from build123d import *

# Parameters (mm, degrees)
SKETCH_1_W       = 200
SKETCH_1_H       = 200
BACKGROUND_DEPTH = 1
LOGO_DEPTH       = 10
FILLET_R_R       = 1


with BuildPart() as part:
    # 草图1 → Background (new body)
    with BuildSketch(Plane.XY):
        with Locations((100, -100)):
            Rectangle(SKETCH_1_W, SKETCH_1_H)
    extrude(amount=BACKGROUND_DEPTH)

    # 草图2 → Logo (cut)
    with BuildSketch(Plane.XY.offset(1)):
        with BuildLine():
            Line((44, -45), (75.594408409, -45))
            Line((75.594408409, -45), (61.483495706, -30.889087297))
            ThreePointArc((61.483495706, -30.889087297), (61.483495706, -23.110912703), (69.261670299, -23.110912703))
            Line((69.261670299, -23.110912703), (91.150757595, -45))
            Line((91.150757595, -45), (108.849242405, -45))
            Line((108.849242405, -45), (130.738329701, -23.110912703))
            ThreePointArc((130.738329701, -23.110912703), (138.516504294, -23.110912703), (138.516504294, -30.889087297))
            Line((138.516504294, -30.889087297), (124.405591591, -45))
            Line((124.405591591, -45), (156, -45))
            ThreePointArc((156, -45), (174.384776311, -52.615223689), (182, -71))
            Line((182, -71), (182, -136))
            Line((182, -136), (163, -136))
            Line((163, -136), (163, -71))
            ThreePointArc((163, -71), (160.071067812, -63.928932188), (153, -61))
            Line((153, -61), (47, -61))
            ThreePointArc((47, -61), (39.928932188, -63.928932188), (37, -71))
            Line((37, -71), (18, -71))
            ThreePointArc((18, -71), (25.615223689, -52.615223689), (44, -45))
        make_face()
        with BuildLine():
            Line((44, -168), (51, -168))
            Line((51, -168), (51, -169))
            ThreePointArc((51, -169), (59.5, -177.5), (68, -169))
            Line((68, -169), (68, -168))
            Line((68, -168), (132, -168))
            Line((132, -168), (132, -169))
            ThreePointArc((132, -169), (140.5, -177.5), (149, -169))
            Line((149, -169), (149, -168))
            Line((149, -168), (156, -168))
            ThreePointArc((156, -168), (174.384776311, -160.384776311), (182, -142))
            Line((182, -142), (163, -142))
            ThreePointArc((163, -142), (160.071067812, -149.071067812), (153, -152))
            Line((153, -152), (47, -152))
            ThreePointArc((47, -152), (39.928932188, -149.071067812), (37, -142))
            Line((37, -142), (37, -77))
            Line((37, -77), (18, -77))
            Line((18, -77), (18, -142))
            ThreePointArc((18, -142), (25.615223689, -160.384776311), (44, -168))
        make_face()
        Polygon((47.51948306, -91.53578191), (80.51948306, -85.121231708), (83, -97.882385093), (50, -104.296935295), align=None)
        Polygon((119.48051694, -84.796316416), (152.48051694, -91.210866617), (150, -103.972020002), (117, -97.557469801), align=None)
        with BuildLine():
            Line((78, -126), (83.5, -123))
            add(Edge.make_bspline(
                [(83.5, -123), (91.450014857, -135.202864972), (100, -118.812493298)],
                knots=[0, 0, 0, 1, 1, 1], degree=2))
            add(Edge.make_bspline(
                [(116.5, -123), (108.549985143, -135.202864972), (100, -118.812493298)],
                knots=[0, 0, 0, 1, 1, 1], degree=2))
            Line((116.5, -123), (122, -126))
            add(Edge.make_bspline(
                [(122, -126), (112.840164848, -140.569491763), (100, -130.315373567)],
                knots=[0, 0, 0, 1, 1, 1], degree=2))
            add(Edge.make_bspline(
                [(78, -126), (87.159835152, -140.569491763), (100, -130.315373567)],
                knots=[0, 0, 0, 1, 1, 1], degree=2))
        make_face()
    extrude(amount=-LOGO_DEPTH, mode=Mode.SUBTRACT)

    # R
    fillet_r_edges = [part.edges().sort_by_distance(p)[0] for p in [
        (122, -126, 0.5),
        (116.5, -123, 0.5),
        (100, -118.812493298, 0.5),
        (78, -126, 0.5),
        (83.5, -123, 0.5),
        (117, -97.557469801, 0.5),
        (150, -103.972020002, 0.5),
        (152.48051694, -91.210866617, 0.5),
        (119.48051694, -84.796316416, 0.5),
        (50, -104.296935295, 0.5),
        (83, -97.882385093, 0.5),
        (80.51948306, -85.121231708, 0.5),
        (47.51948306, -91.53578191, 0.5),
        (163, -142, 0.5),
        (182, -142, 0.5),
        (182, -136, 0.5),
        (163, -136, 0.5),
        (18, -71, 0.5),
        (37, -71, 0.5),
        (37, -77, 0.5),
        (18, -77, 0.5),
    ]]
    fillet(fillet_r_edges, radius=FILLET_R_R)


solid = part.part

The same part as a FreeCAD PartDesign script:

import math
import FreeCAD as App
import Part
import Sketcher
Q = App.Units.Quantity


def edges_at(feature, points):
    """Names of the edges that pass closest to the given points."""
    edges = feature.Shape.Edges
    near = lambda p: min(range(len(edges)), key=lambda i: edges[i].distToShape(Part.Vertex(*p))[0])
    return sorted({f"Edge{near(p) + 1}" for p in points})

doc = App.newDocument("Part")
body = doc.addObject("PartDesign::Body", "Body")

sketch1 = body.newObject("Sketcher::SketchObject", "Sketch")
sketch1.AttachmentSupport = (doc.getObject("XY_Plane"), [""])
sketch1.MapMode = "FlatFace"
sketch1.addGeometry([
    Part.LineSegment(App.Vector(0, 0, 0), App.Vector(0, -200, 0)),
    Part.LineSegment(App.Vector(0, -200, 0), App.Vector(200, -200, 0)),
    Part.LineSegment(App.Vector(200, -200, 0), App.Vector(200, 0, 0)),
    Part.LineSegment(App.Vector(200, 0, 0), App.Vector(0, 0, 0)),
], False)
sketch1.addConstraint([
    Sketcher.Constraint("Coincident", 0, 2, 1, 1),
    Sketcher.Constraint("Coincident", 1, 2, 2, 1),
    Sketcher.Constraint("Coincident", 2, 2, 3, 1),
    Sketcher.Constraint("Coincident", 3, 2, 0, 1),
    Sketcher.Constraint("Vertical", 0),
    Sketcher.Constraint("Horizontal", 1),
    Sketcher.Constraint("Vertical", 2),
    Sketcher.Constraint("Horizontal", 3),
    Sketcher.Constraint("Coincident", 3, 2, -1, 1),
    Sketcher.Constraint("Equal", 3, 0),
    Sketcher.Constraint("DistanceX", 1, 1, 1, 2, Q("200 mm")),
])
pad1 = body.newObject("PartDesign::Pad", "Pad")
pad1.Profile = sketch1
pad1.Length = 1

sketch2 = body.newObject("Sketcher::SketchObject", "Sketch001")
sketch2.AttachmentSupport = (doc.getObject("XY_Plane"), [""])
sketch2.MapMode = "FlatFace"
sketch2.AttachmentOffset = App.Placement(App.Vector(0, 0, 1), App.Rotation())
sketch2.addGeometry([
    Part.LineSegment(App.Vector(75.594408, -45, 0), App.Vector(44, -45, 0)),
    Part.ArcOfCircle(Part.Circle(App.Vector(44, -71, 0), App.Vector(0, 0, 1), 26), math.radians(90), math.radians(180)),
    Part.LineSegment(App.Vector(18, -71, 0), App.Vector(37, -71, 0)),
    Part.ArcOfCircle(Part.Circle(App.Vector(47, -71, 0), App.Vector(0, 0, 1), 10), math.radians(90), math.radians(180)),
    Part.LineSegment(App.Vector(47, -61, 0), App.Vector(153, -61, 0)),
    Part.ArcOfCircle(Part.Circle(App.Vector(153, -71, 0), App.Vector(0, 0, 1), 10), math.radians(0), math.radians(90)),
    Part.LineSegment(App.Vector(163, -71, 0), App.Vector(163, -136, 0)),
    Part.LineSegment(App.Vector(163, -136, 0), App.Vector(182, -136, 0)),
    Part.LineSegment(App.Vector(182, -136, 0), App.Vector(182, -71, 0)),
    Part.ArcOfCircle(Part.Circle(App.Vector(156, -71, 0), App.Vector(0, 0, 1), 26), math.radians(0), math.radians(90)),
    Part.LineSegment(App.Vector(156, -45, 0), App.Vector(124.405592, -45, 0)),
    Part.LineSegment(App.Vector(124.405592, -45, 0), App.Vector(138.516504, -30.889087, 0)),
    Part.ArcOfCircle(Part.Circle(App.Vector(134.627417, -27, 0), App.Vector(0, 0, 1), 5.5), math.radians(-45), math.radians(135)),
    Part.LineSegment(App.Vector(130.73833, -23.110913, 0), App.Vector(108.849242, -45, 0)),
    Part.LineSegment(App.Vector(108.849242, -45, 0), App.Vector(91.150758, -45, 0)),
    Part.LineSegment(App.Vector(91.150758, -45, 0), App.Vector(69.26167, -23.110913, 0)),
    Part.ArcOfCircle(Part.Circle(App.Vector(65.372583, -27, 0), App.Vector(0, 0, 1), 5.5), math.radians(45), math.radians(225)),
    Part.LineSegment(App.Vector(61.483496, -30.889087, 0), App.Vector(75.594408, -45, 0)),
    Part.LineSegment(App.Vector(44, -168, 0), App.Vector(51, -168, 0)),
    Part.LineSegment(App.Vector(51, -168, 0), App.Vector(51, -169, 0)),
    Part.ArcOfCircle(Part.Circle(App.Vector(59.5, -169, 0), App.Vector(0, 0, 1), 8.5), math.radians(180), math.radians(360)),
    Part.LineSegment(App.Vector(68, -169, 0), App.Vector(68, -168, 0)),
    Part.LineSegment(App.Vector(68, -168, 0), App.Vector(132, -168, 0)),
    Part.LineSegment(App.Vector(132, -168, 0), App.Vector(132, -169, 0)),
    Part.ArcOfCircle(Part.Circle(App.Vector(140.5, -169, 0), App.Vector(0, 0, 1), 8.5), math.radians(180), math.radians(360)),
    Part.LineSegment(App.Vector(149, -169, 0), App.Vector(149, -168, 0)),
    Part.LineSegment(App.Vector(149, -168, 0), App.Vector(156, -168, 0)),
    Part.ArcOfCircle(Part.Circle(App.Vector(156, -142, 0), App.Vector(0, 0, 1), 26), math.radians(-90), math.radians(0)),
    Part.LineSegment(App.Vector(182, -142, 0), App.Vector(163, -142, 0)),
    Part.ArcOfCircle(Part.Circle(App.Vector(153, -142, 0), App.Vector(0, 0, 1), 10), math.radians(-90), math.radians(0)),
    Part.LineSegment(App.Vector(153, -152, 0), App.Vector(47, -152, 0)),
    Part.ArcOfCircle(Part.Circle(App.Vector(47, -142, 0), App.Vector(0, 0, 1), 10), math.radians(180), math.radians(270)),
    Part.LineSegment(App.Vector(37, -142, 0), App.Vector(37, -77, 0)),
    Part.LineSegment(App.Vector(37, -77, 0), App.Vector(18, -77, 0)),
    Part.LineSegment(App.Vector(18, -77, 0), App.Vector(18, -142, 0)),
    Part.ArcOfCircle(Part.Circle(App.Vector(44, -142, 0), App.Vector(0, 0, 1), 26), math.radians(180), math.radians(270)),
    Part.LineSegment(App.Vector(80.519483, -85.121232, 0), App.Vector(47.519483, -91.535782, 0)),
    Part.LineSegment(App.Vector(47.519483, -91.535782, 0), App.Vector(50, -104.296935, 0)),
    Part.LineSegment(App.Vector(50, -104.296935, 0), App.Vector(83, -97.882385, 0)),
    Part.LineSegment(App.Vector(83, -97.882385, 0), App.Vector(80.519483, -85.121232, 0)),
    Part.LineSegment(App.Vector(152.480517, -91.210867, 0), App.Vector(119.480517, -84.796316, 0)),
    Part.LineSegment(App.Vector(119.480517, -84.796316, 0), App.Vector(117, -97.55747, 0)),
    Part.LineSegment(App.Vector(117, -97.55747, 0), App.Vector(150, -103.97202, 0)),
    Part.LineSegment(App.Vector(150, -103.97202, 0), App.Vector(152.480517, -91.210867, 0)),
    Part.LineSegment(App.Vector(83.5, -123, 0), App.Vector(78, -126, 0)),
    Part.BSplineCurve([App.Vector(78, -126, 0), App.Vector(87.159835, -140.569492, 0), App.Vector(100, -130.315374, 0)], [3, 3], [0, 1], False, 2, [1, 1, 1], False),
    Part.BSplineCurve([App.Vector(122, -126, 0), App.Vector(112.840165, -140.569492, 0), App.Vector(100, -130.315374, 0)], [3, 3], [0, 1], False, 2, [1, 1, 1], False),
    Part.LineSegment(App.Vector(122, -126, 0), App.Vector(116.5, -123, 0)),
    Part.BSplineCurve([App.Vector(116.5, -123, 0), App.Vector(108.549985, -135.202865, 0), App.Vector(100, -118.812493, 0)], [3, 3], [0, 1], False, 2, [1, 1, 1], False),
    Part.BSplineCurve([App.Vector(83.5, -123, 0), App.Vector(91.450015, -135.202865, 0), App.Vector(100, -118.812493, 0)], [3, 3], [0, 1], False, 2, [1, 1, 1], False),
], False)
sketch2.addConstraint([
    Sketcher.Constraint("Block", 45),
    Sketcher.Constraint("Block", 46),
    Sketcher.Constraint("Block", 48),
    Sketcher.Constraint("Block", 49),
    Sketcher.Constraint("Tangent", 0, 2, 1, 1),
    Sketcher.Constraint("Coincident", 1, 2, 2, 1),
    Sketcher.Constraint("Coincident", 2, 2, 3, 2),
    Sketcher.Constraint("Tangent", 3, 1, 4, 1),
    Sketcher.Constraint("Tangent", 4, 2, 5, 2),
    Sketcher.Constraint("Tangent", 5, 1, 6, 1),
    Sketcher.Constraint("Coincident", 6, 2, 7, 1),
    Sketcher.Constraint("Coincident", 7, 2, 8, 1),
    Sketcher.Constraint("Tangent", 8, 2, 9, 1),
    Sketcher.Constraint("Tangent", 9, 2, 10, 1),
    Sketcher.Constraint("Coincident", 10, 2, 11, 1),
    Sketcher.Constraint("Tangent", 11, 2, 12, 1),
    Sketcher.Constraint("Tangent", 12, 2, 13, 1),
    Sketcher.Constraint("Coincident", 13, 2, 14, 1),
    Sketcher.Constraint("Coincident", 14, 2, 15, 1),
    Sketcher.Constraint("Tangent", 15, 2, 16, 1),
    Sketcher.Constraint("Tangent", 16, 2, 17, 1),
    Sketcher.Constraint("Coincident", 17, 2, 0, 1),
    Sketcher.Constraint("Coincident", 18, 2, 19, 1),
    Sketcher.Constraint("Tangent", 19, 2, 20, 1),
    Sketcher.Constraint("Tangent", 20, 2, 21, 1),
    Sketcher.Constraint("Coincident", 21, 2, 22, 1),
    Sketcher.Constraint("Coincident", 22, 2, 23, 1),
    Sketcher.Constraint("Tangent", 23, 2, 24, 1),
    Sketcher.Constraint("Tangent", 24, 2, 25, 1),
    Sketcher.Constraint("Coincident", 25, 2, 26, 1),
    Sketcher.Constraint("Tangent", 26, 2, 27, 1),
    Sketcher.Constraint("Coincident", 27, 2, 28, 1),
    Sketcher.Constraint("Coincident", 28, 2, 29, 2),
    Sketcher.Constraint("Tangent", 29, 1, 30, 1),
    Sketcher.Constraint("Tangent", 30, 2, 31, 2),
    Sketcher.Constraint("Tangent", 31, 1, 32, 1),
    Sketcher.Constraint("Coincident", 32, 2, 33, 1),
    Sketcher.Constraint("Coincident", 33, 2, 34, 1),
    Sketcher.Constraint("Tangent", 34, 2, 35, 1),
    Sketcher.Constraint("Tangent", 35, 2, 18, 1),
    Sketcher.Constraint("Coincident", 36, 2, 37, 1),
    Sketcher.Constraint("Coincident", 37, 2, 38, 1),
    Sketcher.Constraint("Coincident", 38, 2, 39, 1),
    Sketcher.Constraint("Coincident", 39, 2, 36, 1),
    Sketcher.Constraint("Coincident", 40, 2, 41, 1),
    Sketcher.Constraint("Coincident", 41, 2, 42, 1),
    Sketcher.Constraint("Coincident", 42, 2, 43, 1),
    Sketcher.Constraint("Coincident", 43, 2, 40, 1),
    Sketcher.Constraint("Coincident", 44, 2, 45, 1),
    Sketcher.Constraint("Coincident", 46, 1, 47, 1),
    Sketcher.Constraint("Coincident", 47, 2, 48, 1),
    Sketcher.Constraint("Coincident", 49, 1, 44, 1),
    Sketcher.Constraint("Horizontal", 0),
    Sketcher.Constraint("Horizontal", 2),
    Sketcher.Constraint("Horizontal", 4),
    Sketcher.Constraint("Vertical", 6),
    Sketcher.Constraint("Horizontal", 7),
    Sketcher.Constraint("Vertical", 8),
    Sketcher.Constraint("Horizontal", 10),
    Sketcher.Constraint("Horizontal", 14),
    Sketcher.Constraint("Horizontal", 18),
    Sketcher.Constraint("Vertical", 19),
    Sketcher.Constraint("Vertical", 21),
    Sketcher.Constraint("Horizontal", 22),
    Sketcher.Constraint("Vertical", 23),
    Sketcher.Constraint("Vertical", 25),
    Sketcher.Constraint("Horizontal", 26),
    Sketcher.Constraint("Horizontal", 28),
    Sketcher.Constraint("Horizontal", 30),
    Sketcher.Constraint("Vertical", 32),
    Sketcher.Constraint("Horizontal", 33),
    Sketcher.Constraint("Vertical", 34),
    Sketcher.Constraint("Equal", 3, 5),
    Sketcher.Constraint("Equal", 1, 9),
    Sketcher.Constraint("Equal", 12, 16),
    Sketcher.Constraint("Equal", 20, 24),
    Sketcher.Constraint("Equal", 9, 27),
    Sketcher.Constraint("Equal", 5, 29),
    Sketcher.Constraint("Equal", 29, 31),
    Sketcher.Constraint("Equal", 27, 35),
    Sketcher.Constraint("Parallel", 11, 13),
    Sketcher.Constraint("Perpendicular", 13, 15),
    Sketcher.Constraint("Parallel", 15, 17),
    Sketcher.Constraint("Perpendicular", 36, 37),
    Sketcher.Constraint("Perpendicular", 37, 38),
    Sketcher.Constraint("Perpendicular", 38, 39),
    Sketcher.Constraint("Perpendicular", 40, 41),
    Sketcher.Constraint("Perpendicular", 41, 42),
    Sketcher.Constraint("Perpendicular", 42, 43),
    Sketcher.Constraint("Horizontal", 1, 3, 3, 3),
    Sketcher.Constraint("Horizontal", 5, 3, 9, 3),
    Sketcher.Constraint("Horizontal", 12, 3, 16, 3),
    Sketcher.Constraint("Horizontal", 20, 3, 24, 3),
    Sketcher.Constraint("Horizontal", 27, 3, 29, 3),
    Sketcher.Constraint("Horizontal", 31, 3, 35, 3),
    Sketcher.Constraint("Horizontal", 9, 3, 1, 2),
    Sketcher.Constraint("Horizontal", 10, 2, 13, 2),
    Sketcher.Constraint("Horizontal", 12, 2, 15, 2),
    Sketcher.Constraint("Horizontal", 18, 2, 21, 2),
    Sketcher.Constraint("Horizontal", 35, 3, 27, 2),
    Sketcher.Constraint("Vertical", 9, 3, 27, 3),
    Sketcher.Constraint("Vertical", 5, 3, 29, 3),
    Sketcher.Constraint("Vertical", 3, 3, 31, 3),
    Sketcher.Constraint("Vertical", 1, 3, 35, 3),
    Sketcher.Constraint("Equal", 2, 7),
    Sketcher.Constraint("Equal", 0, 10),
    Sketcher.Constraint("Equal", 18, 26),
    Sketcher.Constraint("Equal", 8, 32),
    Sketcher.Constraint("Equal", 38, 40),
    Sketcher.Constraint("Equal", 39, 41),
    Sketcher.Constraint("Radius", 1, Q("26 mm")),
    Sketcher.Constraint("Radius", 3, Q("10 mm")),
    Sketcher.Constraint("Radius", 12, Q("5.5 mm")),
    Sketcher.Constraint("Radius", 20, Q("8.5 mm")),
    Sketcher.Constraint("DistanceX", 2, 1, 2, 2, Q("19 mm")),
    Sketcher.Constraint("DistanceX", 4, 1, 4, 2, Q("106 mm")),
    Sketcher.Constraint("DistanceX", 18, 1, 18, 2, Q("7 mm")),
    Sketcher.Constraint("DistanceY", 6, 2, 6, 1, Q("65 mm")),
    Sketcher.Constraint("DistanceY", 19, 2, 19, 1, Q("1 mm")),
    Sketcher.Constraint("Angle", 36, Q("-169 deg")),
    Sketcher.Constraint("Angle", 40, Q("169 deg")),
    Sketcher.Constraint("Distance", 37, Q("13 mm")),
    Sketcher.Constraint("DistanceX", -1, 1, 1, 3, Q("44 mm")),
    Sketcher.Constraint("DistanceY", 1, 3, -1, 1, Q("71 mm")),
    Sketcher.Constraint("DistanceY", 12, 3, -1, 1, Q("27 mm")),
    Sketcher.Constraint("DistanceY", 20, 3, -1, 1, Q("169 mm")),
    Sketcher.Constraint("DistanceX", -1, 1, 37, 2, Q("50 mm")),
    Sketcher.Constraint("DistanceX", -1, 1, 38, 2, Q("83 mm")),
    Sketcher.Constraint("DistanceX", -1, 1, 41, 2, Q("117 mm")),
    Sketcher.Constraint("DistanceX", 0, 2, 0, 1, Q("31.594408 mm")),
    Sketcher.Constraint("DistanceY", 36, 2, -1, 1, Q("91.535782 mm")),
    Sketcher.Constraint("DistanceY", 41, 2, -1, 1, Q("97.55747 mm")),
])
pocket1 = body.newObject("PartDesign::Pocket", "Pocket")
pocket1.Profile = sketch2
pocket1.Length = 10
doc.recompute()

fillet = body.newObject("PartDesign::Fillet", "Fillet")
fillet.Base = (pocket1, edges_at(pocket1, [
    (122, -126, 0.5),
    (116.5, -123, 0.5),
    (100, -118.812, 0.5),
    (78, -126, 0.5),
    (83.5, -123, 0.5),
    (117, -97.557, 0.5),
    (150, -103.972, 0.5),
    (152.481, -91.211, 0.5),
    (119.481, -84.796, 0.5),
    (50, -104.297, 0.5),
    (83, -97.882, 0.5),
    (80.519, -85.121, 0.5),
    (47.519, -91.536, 0.5),
    (163, -142, 0.5),
    (182, -142, 0.5),
    (182, -136, 0.5),
    (163, -136, 0.5),
    (18, -71, 0.5),
    (37, -71, 0.5),
    (37, -77, 0.5),
    (18, -77, 0.5),
]))
fillet.Radius = 1

doc.recompute()
